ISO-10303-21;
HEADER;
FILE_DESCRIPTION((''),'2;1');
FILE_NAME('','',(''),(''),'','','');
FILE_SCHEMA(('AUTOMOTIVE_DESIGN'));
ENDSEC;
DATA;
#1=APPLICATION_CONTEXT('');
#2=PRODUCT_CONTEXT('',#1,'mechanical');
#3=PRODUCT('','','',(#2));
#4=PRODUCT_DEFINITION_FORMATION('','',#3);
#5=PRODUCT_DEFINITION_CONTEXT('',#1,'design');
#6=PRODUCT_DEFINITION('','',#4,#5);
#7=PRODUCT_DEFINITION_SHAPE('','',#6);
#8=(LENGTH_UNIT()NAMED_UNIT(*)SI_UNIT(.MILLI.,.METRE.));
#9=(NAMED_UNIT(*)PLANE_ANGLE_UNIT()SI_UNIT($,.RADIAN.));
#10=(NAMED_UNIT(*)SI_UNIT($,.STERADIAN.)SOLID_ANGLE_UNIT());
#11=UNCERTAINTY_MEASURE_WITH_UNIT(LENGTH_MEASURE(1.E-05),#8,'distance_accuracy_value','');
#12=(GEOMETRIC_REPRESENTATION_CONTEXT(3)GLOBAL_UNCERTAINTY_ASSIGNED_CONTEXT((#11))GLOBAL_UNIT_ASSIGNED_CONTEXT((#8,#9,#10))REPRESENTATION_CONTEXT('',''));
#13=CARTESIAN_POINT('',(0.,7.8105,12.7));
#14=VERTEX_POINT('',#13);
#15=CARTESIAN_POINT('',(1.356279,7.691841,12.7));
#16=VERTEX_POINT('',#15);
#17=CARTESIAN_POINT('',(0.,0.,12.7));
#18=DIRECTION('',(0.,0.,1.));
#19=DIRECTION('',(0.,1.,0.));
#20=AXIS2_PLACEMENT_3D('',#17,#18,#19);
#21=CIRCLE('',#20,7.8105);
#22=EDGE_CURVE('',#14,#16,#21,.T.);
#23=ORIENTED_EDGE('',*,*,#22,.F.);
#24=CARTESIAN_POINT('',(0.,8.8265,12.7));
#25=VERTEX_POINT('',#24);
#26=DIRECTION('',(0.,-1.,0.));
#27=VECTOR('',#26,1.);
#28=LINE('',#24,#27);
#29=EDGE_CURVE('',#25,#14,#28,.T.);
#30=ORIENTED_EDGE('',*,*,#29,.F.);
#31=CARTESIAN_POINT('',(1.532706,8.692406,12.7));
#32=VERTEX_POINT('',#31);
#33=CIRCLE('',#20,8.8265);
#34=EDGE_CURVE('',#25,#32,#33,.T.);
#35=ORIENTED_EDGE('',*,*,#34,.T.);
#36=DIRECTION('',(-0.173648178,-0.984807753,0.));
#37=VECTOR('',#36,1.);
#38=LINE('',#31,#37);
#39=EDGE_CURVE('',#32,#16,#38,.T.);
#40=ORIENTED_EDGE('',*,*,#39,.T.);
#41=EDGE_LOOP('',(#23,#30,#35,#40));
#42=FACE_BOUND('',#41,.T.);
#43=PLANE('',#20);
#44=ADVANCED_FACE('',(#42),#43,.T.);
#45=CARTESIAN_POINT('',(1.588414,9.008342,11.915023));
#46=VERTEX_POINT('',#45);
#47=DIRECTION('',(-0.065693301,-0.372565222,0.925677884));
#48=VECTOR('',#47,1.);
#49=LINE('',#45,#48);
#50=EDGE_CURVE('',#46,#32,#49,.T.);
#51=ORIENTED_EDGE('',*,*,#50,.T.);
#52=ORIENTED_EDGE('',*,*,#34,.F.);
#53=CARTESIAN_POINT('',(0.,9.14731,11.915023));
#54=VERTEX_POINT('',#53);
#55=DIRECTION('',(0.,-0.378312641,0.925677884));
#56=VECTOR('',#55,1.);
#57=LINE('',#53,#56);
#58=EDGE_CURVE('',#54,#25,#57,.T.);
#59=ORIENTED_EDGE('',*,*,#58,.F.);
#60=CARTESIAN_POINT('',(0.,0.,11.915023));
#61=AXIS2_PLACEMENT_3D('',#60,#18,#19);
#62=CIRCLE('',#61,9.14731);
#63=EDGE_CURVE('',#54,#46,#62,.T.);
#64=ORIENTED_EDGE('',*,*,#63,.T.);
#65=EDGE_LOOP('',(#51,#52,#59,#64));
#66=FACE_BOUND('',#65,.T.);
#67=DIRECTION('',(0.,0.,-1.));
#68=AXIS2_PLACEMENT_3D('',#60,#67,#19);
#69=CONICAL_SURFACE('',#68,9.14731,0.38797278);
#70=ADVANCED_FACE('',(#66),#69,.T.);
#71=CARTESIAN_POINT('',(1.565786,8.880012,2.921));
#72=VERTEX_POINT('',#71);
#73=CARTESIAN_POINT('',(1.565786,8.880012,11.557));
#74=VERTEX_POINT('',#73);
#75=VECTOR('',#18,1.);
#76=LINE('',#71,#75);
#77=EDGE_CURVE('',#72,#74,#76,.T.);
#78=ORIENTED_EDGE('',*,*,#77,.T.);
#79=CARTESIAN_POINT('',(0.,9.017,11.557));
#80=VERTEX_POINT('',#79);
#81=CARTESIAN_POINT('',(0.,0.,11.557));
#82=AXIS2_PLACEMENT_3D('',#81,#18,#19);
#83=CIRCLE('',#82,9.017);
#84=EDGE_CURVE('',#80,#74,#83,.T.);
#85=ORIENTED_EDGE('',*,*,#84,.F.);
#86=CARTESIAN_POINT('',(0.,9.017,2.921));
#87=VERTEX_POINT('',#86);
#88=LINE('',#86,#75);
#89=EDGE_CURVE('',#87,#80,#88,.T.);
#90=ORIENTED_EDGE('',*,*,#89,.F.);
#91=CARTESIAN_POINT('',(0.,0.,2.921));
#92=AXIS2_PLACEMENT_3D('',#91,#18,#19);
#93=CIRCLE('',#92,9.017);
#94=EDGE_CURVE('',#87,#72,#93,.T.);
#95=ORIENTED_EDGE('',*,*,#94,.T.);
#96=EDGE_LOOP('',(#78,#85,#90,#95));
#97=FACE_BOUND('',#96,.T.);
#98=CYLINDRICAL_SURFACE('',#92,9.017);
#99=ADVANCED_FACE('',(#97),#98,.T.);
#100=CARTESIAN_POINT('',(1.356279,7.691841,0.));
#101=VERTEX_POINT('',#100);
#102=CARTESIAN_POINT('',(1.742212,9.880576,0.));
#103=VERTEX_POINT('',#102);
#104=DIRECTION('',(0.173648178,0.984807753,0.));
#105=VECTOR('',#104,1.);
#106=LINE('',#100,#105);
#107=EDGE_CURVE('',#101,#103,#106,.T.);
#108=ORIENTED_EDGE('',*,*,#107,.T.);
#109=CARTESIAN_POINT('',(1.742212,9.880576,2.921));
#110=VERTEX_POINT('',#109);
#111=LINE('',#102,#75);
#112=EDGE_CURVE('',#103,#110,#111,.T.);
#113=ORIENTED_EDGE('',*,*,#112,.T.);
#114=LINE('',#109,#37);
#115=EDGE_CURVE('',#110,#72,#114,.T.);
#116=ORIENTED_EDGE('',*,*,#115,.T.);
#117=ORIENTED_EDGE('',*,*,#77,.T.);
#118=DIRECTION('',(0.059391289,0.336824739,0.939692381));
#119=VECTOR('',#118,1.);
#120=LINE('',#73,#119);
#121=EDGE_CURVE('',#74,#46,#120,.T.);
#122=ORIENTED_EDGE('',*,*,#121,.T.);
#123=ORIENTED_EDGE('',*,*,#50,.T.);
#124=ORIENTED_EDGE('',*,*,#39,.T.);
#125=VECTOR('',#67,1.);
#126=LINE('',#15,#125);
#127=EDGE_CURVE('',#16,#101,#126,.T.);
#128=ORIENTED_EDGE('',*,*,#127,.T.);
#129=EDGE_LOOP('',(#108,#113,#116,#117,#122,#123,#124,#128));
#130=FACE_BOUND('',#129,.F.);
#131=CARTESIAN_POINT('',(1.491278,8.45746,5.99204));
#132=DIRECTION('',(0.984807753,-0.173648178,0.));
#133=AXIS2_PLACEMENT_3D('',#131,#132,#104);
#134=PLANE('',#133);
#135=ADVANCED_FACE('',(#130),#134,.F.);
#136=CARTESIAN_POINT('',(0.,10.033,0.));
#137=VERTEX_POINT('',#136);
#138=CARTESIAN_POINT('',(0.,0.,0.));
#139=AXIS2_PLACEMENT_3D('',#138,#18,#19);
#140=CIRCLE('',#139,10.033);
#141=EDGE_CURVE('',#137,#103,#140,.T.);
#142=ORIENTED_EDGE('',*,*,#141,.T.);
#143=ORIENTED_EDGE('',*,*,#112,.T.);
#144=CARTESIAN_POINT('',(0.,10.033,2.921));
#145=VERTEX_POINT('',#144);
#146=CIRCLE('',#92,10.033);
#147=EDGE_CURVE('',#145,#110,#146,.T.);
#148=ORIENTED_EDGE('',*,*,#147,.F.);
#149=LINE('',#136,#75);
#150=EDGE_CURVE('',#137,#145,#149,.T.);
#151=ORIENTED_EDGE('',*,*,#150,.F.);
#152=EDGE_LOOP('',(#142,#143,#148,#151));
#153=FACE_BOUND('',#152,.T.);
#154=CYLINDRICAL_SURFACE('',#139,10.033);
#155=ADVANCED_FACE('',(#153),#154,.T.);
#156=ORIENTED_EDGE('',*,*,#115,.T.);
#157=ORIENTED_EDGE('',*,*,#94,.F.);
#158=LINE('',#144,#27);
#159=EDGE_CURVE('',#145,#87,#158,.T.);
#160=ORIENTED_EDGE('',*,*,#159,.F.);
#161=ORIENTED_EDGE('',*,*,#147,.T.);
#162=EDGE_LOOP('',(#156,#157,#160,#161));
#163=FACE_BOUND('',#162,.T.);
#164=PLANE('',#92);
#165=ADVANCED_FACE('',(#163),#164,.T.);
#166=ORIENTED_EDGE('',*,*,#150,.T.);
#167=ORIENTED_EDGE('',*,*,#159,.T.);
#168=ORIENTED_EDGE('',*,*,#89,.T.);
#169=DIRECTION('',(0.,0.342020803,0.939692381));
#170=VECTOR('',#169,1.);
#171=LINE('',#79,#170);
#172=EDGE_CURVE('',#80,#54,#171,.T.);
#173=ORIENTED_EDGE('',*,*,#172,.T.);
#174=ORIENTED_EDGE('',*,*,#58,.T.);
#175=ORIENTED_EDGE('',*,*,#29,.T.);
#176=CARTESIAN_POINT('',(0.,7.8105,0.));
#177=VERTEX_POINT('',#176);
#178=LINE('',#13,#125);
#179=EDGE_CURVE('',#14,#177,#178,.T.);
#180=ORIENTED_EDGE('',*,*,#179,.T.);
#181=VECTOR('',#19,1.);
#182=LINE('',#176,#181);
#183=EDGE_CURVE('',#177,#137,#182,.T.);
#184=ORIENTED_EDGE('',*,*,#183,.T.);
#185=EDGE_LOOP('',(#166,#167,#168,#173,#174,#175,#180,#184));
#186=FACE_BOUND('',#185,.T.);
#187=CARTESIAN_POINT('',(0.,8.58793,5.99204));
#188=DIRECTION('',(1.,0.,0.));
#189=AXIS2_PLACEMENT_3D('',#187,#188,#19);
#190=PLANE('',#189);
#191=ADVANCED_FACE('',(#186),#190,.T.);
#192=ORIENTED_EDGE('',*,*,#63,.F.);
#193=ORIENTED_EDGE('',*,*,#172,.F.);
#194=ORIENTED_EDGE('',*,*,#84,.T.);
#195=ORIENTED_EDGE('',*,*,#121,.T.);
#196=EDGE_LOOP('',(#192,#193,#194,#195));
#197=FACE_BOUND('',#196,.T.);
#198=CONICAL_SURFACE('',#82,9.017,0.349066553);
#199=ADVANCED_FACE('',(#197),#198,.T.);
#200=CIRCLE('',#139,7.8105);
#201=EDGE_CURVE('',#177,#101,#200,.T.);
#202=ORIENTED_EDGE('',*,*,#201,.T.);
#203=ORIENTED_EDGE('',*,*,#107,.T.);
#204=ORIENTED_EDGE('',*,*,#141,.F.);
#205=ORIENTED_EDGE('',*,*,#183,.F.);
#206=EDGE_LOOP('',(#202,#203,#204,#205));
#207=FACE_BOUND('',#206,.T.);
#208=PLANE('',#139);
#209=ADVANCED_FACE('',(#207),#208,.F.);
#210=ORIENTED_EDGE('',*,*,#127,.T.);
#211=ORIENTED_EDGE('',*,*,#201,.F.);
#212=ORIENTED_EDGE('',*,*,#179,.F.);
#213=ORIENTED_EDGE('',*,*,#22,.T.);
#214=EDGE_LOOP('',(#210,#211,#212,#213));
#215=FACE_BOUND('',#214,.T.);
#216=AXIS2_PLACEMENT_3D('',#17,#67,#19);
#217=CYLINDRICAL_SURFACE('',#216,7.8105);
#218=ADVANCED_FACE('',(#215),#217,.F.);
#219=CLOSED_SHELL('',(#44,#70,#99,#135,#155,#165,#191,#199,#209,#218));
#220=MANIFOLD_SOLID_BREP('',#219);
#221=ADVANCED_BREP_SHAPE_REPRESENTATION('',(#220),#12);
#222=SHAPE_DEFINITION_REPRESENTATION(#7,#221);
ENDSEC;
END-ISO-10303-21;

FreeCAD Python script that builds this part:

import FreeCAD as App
import Part
import Sketcher
Q = App.Units.Quantity

doc = App.newDocument("Part")
body = doc.addObject("PartDesign::Body", "Body")

# Sketch on YZ plane
sketch1 = body.newObject("Sketcher::SketchObject", "Sketch")
sketch1.AttachmentSupport = (doc.getObject("YZ_Plane"), [""])
sketch1.MapMode = "FlatFace"
sketch1.addGeometry([
    Part.LineSegment(App.Vector(7.81, 12.7, 0), App.Vector(7.81, 0, 0)),  # 0
    Part.LineSegment(App.Vector(7.81, 0, 0), App.Vector(10.03, 0, 0)),  # 1
    Part.LineSegment(App.Vector(10.03, 0, 0), App.Vector(10.03, 2.92, 0)),  # 2
    Part.LineSegment(App.Vector(10.03, 2.92, 0), App.Vector(9.02, 2.92, 0)),  # 3
    Part.LineSegment(App.Vector(9.02, 2.92, 0), App.Vector(9.02, 11.56, 0)),  # 4
    Part.LineSegment(App.Vector(9.02, 11.56, 0), App.Vector(9.15, 11.92, 0)),  # 5
    Part.LineSegment(App.Vector(9.15, 11.92, 0), App.Vector(8.83, 12.7, 0)),  # 6
    Part.LineSegment(App.Vector(8.83, 12.7, 0), App.Vector(7.81, 12.7, 0)),  # 7
], False)
sketch1.addConstraint([
    Sketcher.Constraint("Coincident", 0, 2, 1, 1),
    Sketcher.Constraint("Coincident", 1, 2, 2, 1),
    Sketcher.Constraint("Coincident", 2, 2, 3, 1),
    Sketcher.Constraint("Coincident", 3, 2, 4, 1),
    Sketcher.Constraint("Coincident", 4, 2, 5, 1),
    Sketcher.Constraint("Coincident", 5, 2, 6, 1),
    Sketcher.Constraint("Coincident", 6, 2, 7, 1),
    Sketcher.Constraint("Coincident", 7, 2, 0, 1),
    Sketcher.Constraint("Vertical", 0),
    Sketcher.Constraint("Horizontal", 1),
    Sketcher.Constraint("Vertical", 2),
    Sketcher.Constraint("Horizontal", 3),
    Sketcher.Constraint("Vertical", 4),
    Sketcher.Constraint("Horizontal", 7),
    Sketcher.Constraint("PointOnObject", 0, 2, -1),
    Sketcher.Constraint("Equal", 3, 7),
    Sketcher.Constraint("DistanceY", 0, 2, 0, 1, Q("0.5 in")),
    Sketcher.Constraint("DistanceX", 3, 2, 3, 1, Q("0.04 in")),
    Sketcher.Constraint("DistanceY", 4, 1, 4, 2, Q("0.34 in")),
    Sketcher.Constraint("DistanceY", 2, 1, 2, 2, Q("0.115 in")),
    Sketcher.Constraint("Distance", 5, Q("0.015 in")),
    Sketcher.Constraint("DistanceX", 1, 1, 1, 2, Q("0.0875 in")),
    Sketcher.Constraint("DistanceX", -1, 1, 1, 2, Q("0.395 in")),
    Sketcher.Constraint("DistanceX", -1, 1, 5, 2, Q("9.14731 mm")),
])
revolution = body.newObject("PartDesign::Revolution", "Revolution")
revolution.Profile = sketch1
revolution.ReferenceAxis = (sketch1, ["V_Axis"])
revolution.Angle = 350

doc.recompute()
